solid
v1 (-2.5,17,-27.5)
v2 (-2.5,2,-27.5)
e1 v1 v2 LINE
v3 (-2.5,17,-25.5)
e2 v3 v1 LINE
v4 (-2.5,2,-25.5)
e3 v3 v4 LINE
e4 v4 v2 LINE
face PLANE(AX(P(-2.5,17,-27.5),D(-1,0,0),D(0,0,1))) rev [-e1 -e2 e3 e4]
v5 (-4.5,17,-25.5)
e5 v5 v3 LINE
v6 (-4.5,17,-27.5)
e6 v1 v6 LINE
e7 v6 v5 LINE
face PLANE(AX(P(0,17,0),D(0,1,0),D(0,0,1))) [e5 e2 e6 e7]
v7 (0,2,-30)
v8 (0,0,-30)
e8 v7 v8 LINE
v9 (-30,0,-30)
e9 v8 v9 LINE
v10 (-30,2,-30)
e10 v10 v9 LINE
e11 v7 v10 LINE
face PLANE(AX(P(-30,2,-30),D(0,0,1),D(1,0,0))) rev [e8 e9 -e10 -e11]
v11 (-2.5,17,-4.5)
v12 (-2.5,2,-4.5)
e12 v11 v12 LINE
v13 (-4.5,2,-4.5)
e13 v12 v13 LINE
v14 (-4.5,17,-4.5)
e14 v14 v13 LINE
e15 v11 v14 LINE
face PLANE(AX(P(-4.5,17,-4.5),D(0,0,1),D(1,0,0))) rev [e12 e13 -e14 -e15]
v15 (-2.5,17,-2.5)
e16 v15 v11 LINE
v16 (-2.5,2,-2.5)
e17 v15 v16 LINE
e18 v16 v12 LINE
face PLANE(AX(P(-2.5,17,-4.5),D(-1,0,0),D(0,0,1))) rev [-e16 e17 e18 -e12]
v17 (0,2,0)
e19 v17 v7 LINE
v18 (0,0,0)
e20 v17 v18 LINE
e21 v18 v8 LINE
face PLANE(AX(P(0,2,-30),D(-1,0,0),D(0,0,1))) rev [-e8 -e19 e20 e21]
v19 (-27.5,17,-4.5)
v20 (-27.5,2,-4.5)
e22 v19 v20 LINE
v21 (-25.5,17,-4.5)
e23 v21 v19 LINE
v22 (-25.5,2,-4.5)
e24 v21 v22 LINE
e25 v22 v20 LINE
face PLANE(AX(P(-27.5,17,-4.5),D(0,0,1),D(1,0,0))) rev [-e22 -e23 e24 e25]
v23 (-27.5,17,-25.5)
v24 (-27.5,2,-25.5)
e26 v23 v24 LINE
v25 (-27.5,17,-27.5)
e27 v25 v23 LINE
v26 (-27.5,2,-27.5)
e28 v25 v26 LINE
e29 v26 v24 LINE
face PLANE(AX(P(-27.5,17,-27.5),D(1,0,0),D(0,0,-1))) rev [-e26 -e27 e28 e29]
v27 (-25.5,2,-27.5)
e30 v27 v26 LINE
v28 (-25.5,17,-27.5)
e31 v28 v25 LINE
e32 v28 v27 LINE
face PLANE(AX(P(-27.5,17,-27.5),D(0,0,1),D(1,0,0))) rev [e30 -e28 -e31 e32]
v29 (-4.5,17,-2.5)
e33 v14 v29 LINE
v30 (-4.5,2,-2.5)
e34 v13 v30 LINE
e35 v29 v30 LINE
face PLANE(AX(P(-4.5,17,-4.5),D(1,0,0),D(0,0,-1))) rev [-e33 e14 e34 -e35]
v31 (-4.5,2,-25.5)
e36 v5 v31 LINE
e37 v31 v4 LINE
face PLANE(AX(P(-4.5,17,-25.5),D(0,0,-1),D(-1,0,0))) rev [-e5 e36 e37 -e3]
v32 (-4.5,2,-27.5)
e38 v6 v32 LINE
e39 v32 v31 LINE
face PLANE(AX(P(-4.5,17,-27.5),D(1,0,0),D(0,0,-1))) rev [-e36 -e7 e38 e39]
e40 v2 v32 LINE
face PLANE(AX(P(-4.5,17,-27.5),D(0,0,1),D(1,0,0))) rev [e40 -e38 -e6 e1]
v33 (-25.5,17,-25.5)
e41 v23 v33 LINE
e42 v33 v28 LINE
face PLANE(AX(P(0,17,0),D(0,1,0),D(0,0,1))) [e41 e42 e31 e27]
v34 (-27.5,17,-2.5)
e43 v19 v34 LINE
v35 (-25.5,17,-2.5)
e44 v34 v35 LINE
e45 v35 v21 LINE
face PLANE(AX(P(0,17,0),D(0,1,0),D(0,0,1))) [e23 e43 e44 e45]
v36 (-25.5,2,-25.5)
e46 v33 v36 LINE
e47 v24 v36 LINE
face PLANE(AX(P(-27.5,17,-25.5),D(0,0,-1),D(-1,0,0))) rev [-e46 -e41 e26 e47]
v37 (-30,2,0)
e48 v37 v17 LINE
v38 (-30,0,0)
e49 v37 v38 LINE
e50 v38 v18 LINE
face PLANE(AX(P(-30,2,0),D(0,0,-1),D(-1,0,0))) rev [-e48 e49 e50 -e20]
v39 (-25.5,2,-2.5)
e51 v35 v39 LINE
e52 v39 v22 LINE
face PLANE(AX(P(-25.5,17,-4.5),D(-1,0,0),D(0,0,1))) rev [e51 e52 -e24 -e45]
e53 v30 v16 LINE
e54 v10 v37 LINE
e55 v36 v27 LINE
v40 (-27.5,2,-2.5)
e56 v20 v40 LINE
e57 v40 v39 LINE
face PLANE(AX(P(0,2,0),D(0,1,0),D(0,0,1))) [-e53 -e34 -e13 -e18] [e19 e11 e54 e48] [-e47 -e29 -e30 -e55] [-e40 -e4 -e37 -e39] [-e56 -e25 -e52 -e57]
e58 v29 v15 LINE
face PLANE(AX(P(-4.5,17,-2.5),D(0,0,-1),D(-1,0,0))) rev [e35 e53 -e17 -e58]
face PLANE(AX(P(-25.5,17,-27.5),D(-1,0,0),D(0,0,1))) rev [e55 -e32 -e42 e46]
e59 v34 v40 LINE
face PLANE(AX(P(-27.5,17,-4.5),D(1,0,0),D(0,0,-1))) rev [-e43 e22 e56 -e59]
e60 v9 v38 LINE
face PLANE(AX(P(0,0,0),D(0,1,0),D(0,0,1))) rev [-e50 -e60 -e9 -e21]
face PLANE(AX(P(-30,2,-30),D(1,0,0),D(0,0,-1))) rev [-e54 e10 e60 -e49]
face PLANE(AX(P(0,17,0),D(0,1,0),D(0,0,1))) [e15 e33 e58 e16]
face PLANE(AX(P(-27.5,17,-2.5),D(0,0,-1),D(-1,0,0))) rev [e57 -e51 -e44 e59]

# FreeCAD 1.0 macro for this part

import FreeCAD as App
import Part
import Sketcher

V = App.Vector
Q = App.Units.Quantity

doc = App.newDocument("Part")
body = doc.addObject("PartDesign::Body", "Body")

sketch1 = doc.addObject("Sketcher::SketchObject", "Sketch")
body.addObject(sketch1)
sketch1.AttachmentSupport = (doc.XZ_Plane, [""])
sketch1.MapMode = "FlatFace"
sketch1.addGeometry(Part.LineSegment(V(-30, -30, 0), V(-30, 0, 0)), False)
sketch1.addGeometry(Part.LineSegment(V(-30, 0, 0), V(0, 0, 0)), False)
sketch1.addGeometry(Part.LineSegment(V(0, 0, 0), V(0, -30, 0)), False)
sketch1.addGeometry(Part.LineSegment(V(0, -30, 0), V(-30, -30, 0)), False)
sketch1.addConstraint(Sketcher.Constraint("Coincident", 0, 2, 1, 1))
sketch1.addConstraint(Sketcher.Constraint("Coincident", 1, 2, 2, 1))
sketch1.addConstraint(Sketcher.Constraint("Coincident", 2, 2, 3, 1))
sketch1.addConstraint(Sketcher.Constraint("Coincident", 3, 2, 0, 1))
sketch1.addConstraint(Sketcher.Constraint("Vertical", 0))
sketch1.addConstraint(Sketcher.Constraint("Horizontal", 1))
sketch1.addConstraint(Sketcher.Constraint("Vertical", 2))
sketch1.addConstraint(Sketcher.Constraint("Horizontal", 3))
sketch1.addConstraint(Sketcher.Constraint("Coincident", 1, 2, -1, 1))
sketch1.addConstraint(Sketcher.Constraint("Equal", 3, 0))
sketch1.addConstraint(Sketcher.Constraint("DistanceX", 1, 1, 1, 2, Q("30 mm")))
pad1 = doc.addObject("PartDesign::Pad", "Pad")
body.addObject(pad1)
pad1.Profile = sketch1
pad1.Length = 2
pad1.Reversed = True

sketch2 = doc.addObject("Sketcher::SketchObject", "Sketch001")
body.addObject(sketch2)
sketch2.AttachmentSupport = (doc.XZ_Plane, [""])
sketch2.MapMode = "FlatFace"
sketch2.AttachmentOffset = App.Placement(V(0, 0, -2), App.Rotation())
sketch2.addGeometry(Part.LineSegment(V(-27.5, -27.5, 0), V(-27.5, -25.5, 0)), False)
sketch2.addGeometry(Part.LineSegment(V(-27.5, -25.5, 0), V(-25.5, -25.5, 0)), False)
sketch2.addGeometry(Part.LineSegment(V(-25.5, -25.5, 0), V(-25.5, -27.5, 0)), False)
sketch2.addGeometry(Part.LineSegment(V(-25.5, -27.5, 0), V(-27.5, -27.5, 0)), False)
sketch2.addGeometry(Part.LineSegment(V(-4.5, -27.5, 0), V(-4.5, -25.5, 0)), False)
sketch2.addGeometry(Part.LineSegment(V(-4.5, -25.5, 0), V(-2.5, -25.5, 0)), False)
sketch2.addGeometry(Part.LineSegment(V(-2.5, -25.5, 0), V(-2.5, -27.5, 0)), False)
sketch2.addGeometry(Part.LineSegment(V(-2.5, -27.5, 0), V(-4.5, -27.5, 0)), False)
sketch2.addGeometry(Part.LineSegment(V(-4.5, -4.5, 0), V(-4.5, -2.5, 0)), False)
sketch2.addGeometry(Part.LineSegment(V(-4.5, -2.5, 0), V(-2.5, -2.5, 0)), False)
sketch2.addGeometry(Part.LineSegment(V(-2.5, -2.5, 0), V(-2.5, -4.5, 0)), False)
sketch2.addGeometry(Part.LineSegment(V(-2.5, -4.5, 0), V(-4.5, -4.5, 0)), False)
sketch2.addGeometry(Part.LineSegment(V(-27.5, -4.5, 0), V(-27.5, -2.5, 0)), False)
sketch2.addGeometry(Part.LineSegment(V(-27.5, -2.5, 0), V(-25.5, -2.5, 0)), False)
sketch2.addGeometry(Part.LineSegment(V(-25.5, -2.5, 0), V(-25.5, -4.5, 0)), False)
sketch2.addGeometry(Part.LineSegment(V(-25.5, -4.5, 0), V(-27.5, -4.5, 0)), False)
sketch2.addConstraint(Sketcher.Constraint("Coincident", 0, 2, 1, 1))
sketch2.addConstraint(Sketcher.Constraint("Coincident", 1, 2, 2, 1))
sketch2.addConstraint(Sketcher.Constraint("Coincident", 2, 2, 3, 1))
sketch2.addConstraint(Sketcher.Constraint("Coincident", 3, 2, 0, 1))
sketch2.addConstraint(Sketcher.Constraint("Coincident", 4, 2, 5, 1))
sketch2.addConstraint(Sketcher.Constraint("Coincident", 5, 2, 6, 1))
sketch2.addConstraint(Sketcher.Constraint("Coincident", 6, 2, 7, 1))
sketch2.addConstraint(Sketcher.Constraint("Coincident", 7, 2, 4, 1))
sketch2.addConstraint(Sketcher.Constraint("Coincident", 8, 2, 9, 1))
sketch2.addConstraint(Sketcher.Constraint("Coincident", 9, 2, 10, 1))
sketch2.addConstraint(Sketcher.Constraint("Coincident", 10, 2, 11, 1))
sketch2.addConstraint(Sketcher.Constraint("Coincident", 11, 2, 8, 1))
sketch2.addConstraint(Sketcher.Constraint("Coincident", 12, 2, 13, 1))
sketch2.addConstraint(Sketcher.Constraint("Coincident", 13, 2, 14, 1))
sketch2.addConstraint(Sketcher.Constraint("Coincident", 14, 2, 15, 1))
sketch2.addConstraint(Sketcher.Constraint("Coincident", 15, 2, 12, 1))
sketch2.addConstraint(Sketcher.Constraint("Vertical", 0))
sketch2.addConstraint(Sketcher.Constraint("Horizontal", 1))
sketch2.addConstraint(Sketcher.Constraint("Vertical", 2))
sketch2.addConstraint(Sketcher.Constraint("Horizontal", 3))
sketch2.addConstraint(Sketcher.Constraint("Vertical", 4))
sketch2.addConstraint(Sketcher.Constraint("Horizontal", 5))
sketch2.addConstraint(Sketcher.Constraint("Vertical", 6))
sketch2.addConstraint(Sketcher.Constraint("Horizontal", 7))
sketch2.addConstraint(Sketcher.Constraint("Vertical", 8))
sketch2.addConstraint(Sketcher.Constraint("Horizontal", 9))
sketch2.addConstraint(Sketcher.Constraint("Vertical", 10))
sketch2.addConstraint(Sketcher.Constraint("Horizontal", 11))
sketch2.addConstraint(Sketcher.Constraint("Vertical", 12))
sketch2.addConstraint(Sketcher.Constraint("Horizontal", 13))
sketch2.addConstraint(Sketcher.Constraint("Vertical", 14))
sketch2.addConstraint(Sketcher.Constraint("Horizontal", 15))
sketch2.addConstraint(Sketcher.Constraint("Horizontal", 1, 2, 4, 2))
sketch2.addConstraint(Sketcher.Constraint("Horizontal", 3, 2, 6, 2))
sketch2.addConstraint(Sketcher.Constraint("Horizontal", 9, 2, 12, 2))
sketch2.addConstraint(Sketcher.Constraint("Horizontal", 11, 2, 14, 2))
sketch2.addConstraint(Sketcher.Constraint("Vertical", 7, 2, 8, 2))
sketch2.addConstraint(Sketcher.Constraint("Vertical", 6, 2, 9, 2))
sketch2.addConstraint(Sketcher.Constraint("Vertical", 3, 2, 12, 2))
sketch2.addConstraint(Sketcher.Constraint("Vertical", 2, 2, 13, 2))
sketch2.addConstraint(Sketcher.Constraint("Equal", 3, 5))
sketch2.addConstraint(Sketcher.Constraint("Equal", 15, 0))
sketch2.addConstraint(Sketcher.Constraint("Equal", 6, 8))
sketch2.addConstraint(Sketcher.Constraint("DistanceX", 1, 1, 1, 2, Q("2 mm")))
sketch2.addConstraint(Sketcher.Constraint("DistanceX", 1, 2, 4, 2, Q("21 mm")))
sketch2.addConstraint(Sketcher.Constraint("DistanceY", 4, 2, 8, 2, Q("23 mm")))
sketch2.addConstraint(Sketcher.Constraint("DistanceX", 0, 2, -1, 1, Q("27.5 mm")))
sketch2.addConstraint(Sketcher.Constraint("DistanceY", 0, 2, -1, 1, Q("25.5 mm")))
pad2 = doc.addObject("PartDesign::Pad", "Pad001")
body.addObject(pad2)
pad2.Profile = sketch2
pad2.Length = 15
pad2.Reversed = True

doc.recompute()
